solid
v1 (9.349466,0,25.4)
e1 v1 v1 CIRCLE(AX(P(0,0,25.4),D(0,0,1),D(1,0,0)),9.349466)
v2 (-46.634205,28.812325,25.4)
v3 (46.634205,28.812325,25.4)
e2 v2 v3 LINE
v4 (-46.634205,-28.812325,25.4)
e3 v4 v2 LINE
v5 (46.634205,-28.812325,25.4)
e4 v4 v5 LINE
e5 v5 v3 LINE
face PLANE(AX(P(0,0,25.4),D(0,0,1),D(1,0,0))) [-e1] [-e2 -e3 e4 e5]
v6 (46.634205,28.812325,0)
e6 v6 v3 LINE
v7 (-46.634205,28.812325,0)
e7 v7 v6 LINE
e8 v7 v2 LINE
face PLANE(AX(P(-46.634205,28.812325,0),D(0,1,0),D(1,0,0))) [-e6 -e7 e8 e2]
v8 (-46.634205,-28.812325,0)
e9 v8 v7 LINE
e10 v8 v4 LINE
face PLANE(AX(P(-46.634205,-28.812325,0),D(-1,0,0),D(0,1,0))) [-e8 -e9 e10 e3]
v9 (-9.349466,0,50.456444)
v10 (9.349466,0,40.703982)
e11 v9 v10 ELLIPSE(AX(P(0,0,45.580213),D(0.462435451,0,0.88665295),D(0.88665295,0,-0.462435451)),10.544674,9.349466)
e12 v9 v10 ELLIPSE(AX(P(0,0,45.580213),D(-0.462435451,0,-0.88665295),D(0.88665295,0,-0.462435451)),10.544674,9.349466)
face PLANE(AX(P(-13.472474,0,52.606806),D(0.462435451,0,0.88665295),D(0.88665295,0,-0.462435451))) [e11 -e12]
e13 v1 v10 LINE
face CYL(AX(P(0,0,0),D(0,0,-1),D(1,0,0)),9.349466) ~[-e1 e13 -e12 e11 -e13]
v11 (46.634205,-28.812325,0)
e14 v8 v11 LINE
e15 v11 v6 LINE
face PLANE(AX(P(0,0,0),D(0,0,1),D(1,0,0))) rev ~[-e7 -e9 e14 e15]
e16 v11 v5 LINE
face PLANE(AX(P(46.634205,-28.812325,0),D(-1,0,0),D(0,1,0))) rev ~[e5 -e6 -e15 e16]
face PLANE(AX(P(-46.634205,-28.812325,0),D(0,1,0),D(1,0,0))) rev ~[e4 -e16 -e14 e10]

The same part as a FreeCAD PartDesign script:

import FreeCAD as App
import Part
import Sketcher

V = App.Vector
Q = App.Units.Quantity

doc = App.newDocument("Part")
body = doc.addObject("PartDesign::Body", "Body")

# Sketch on XY plane
sketch1 = doc.addObject("Sketcher::SketchObject", "Sketch")
body.addObject(sketch1)
sketch1.AttachmentSupport = (doc.XY_Plane, [""])
sketch1.MapMode = "FlatFace"
sketch1.addGeometry(Part.Circle(V(0, 0, 0), V(0, 0, 1), 9), False)
sketch1.addConstraint([
    Sketcher.Constraint("Coincident", 0, 3, -1, 1),
    Sketcher.Constraint("Diameter", 0, 18.698932),
])
pad1 = doc.addObject("PartDesign::Pad", "Pad")
body.addObject(pad1)
pad1.Profile = sketch1
pad1.Length = Q("2 in")

# Sketch on XY plane
sketch2 = doc.addObject("Sketcher::SketchObject", "Sketch001")
body.addObject(sketch2)
sketch2.AttachmentSupport = (doc.XY_Plane, [""])
sketch2.MapMode = "FlatFace"
sketch2.addGeometry([
    Part.LineSegment(V(-47, 29, 0), V(-47, -29, 0)),  # 0
    Part.LineSegment(V(-47, -29, 0), V(47, -29, 0)),  # 1
    Part.LineSegment(V(47, -29, 0), V(47, 29, 0)),  # 2
    Part.LineSegment(V(47, 29, 0), V(-47, 29, 0)),  # 3
    Part.Circle(V(0, 0, 0), V(0, 0, 1), 9),  # 4
], False)
sketch2.addConstraint([
    Sketcher.Constraint("Coincident", 0, 2, 1, 1),
    Sketcher.Constraint("Coincident", 1, 2, 2, 1),
    Sketcher.Constraint("Coincident", 2, 2, 3, 1),
    Sketcher.Constraint("Coincident", 3, 2, 0, 1),
    Sketcher.Constraint("Vertical", 0),
    Sketcher.Constraint("Horizontal", 1),
    Sketcher.Constraint("Vertical", 2),
    Sketcher.Constraint("Horizontal", 3),
    Sketcher.Constraint("Coincident", 4, 3, -1, 1),
    Sketcher.Constraint("Symmetric", 0, 2, 2, 2, -1, 1),
    Sketcher.Constraint("Diameter", 4, 18.698932),
    Sketcher.Constraint("DistanceX", 1, 1, 1, 2, 93.26841),
    Sketcher.Constraint("DistanceY", 0, 2, 0, 1, 57.62465),
])
pad2 = doc.addObject("PartDesign::Pad", "Pad001")
body.addObject(pad2)
pad2.Profile = sketch2
pad2.Length = Q("1 in")

# Sketch on XZ plane
sketch3 = doc.addObject("Sketcher::SketchObject", "Sketch002")
body.addObject(sketch3)
sketch3.AttachmentSupport = (doc.XZ_Plane, [""])
sketch3.MapMode = "FlatFace"
sketch3.addGeometry([
    Part.LineSegment(V(29, 53, 0), V(-13, 53, 0)),
    Part.LineSegment(V(-13, 53, 0), V(29, 30, 0)),
    Part.LineSegment(V(29, 30, 0), V(29, 53, 0)),
], False)
sketch3.addConstraint([
    Sketcher.Constraint("Coincident", 0, 2, 1, 1),
    Sketcher.Constraint("Coincident", 1, 2, 2, 1),
    Sketcher.Constraint("Coincident", 2, 2, 0, 1),
    Sketcher.Constraint("Horizontal", 0),
    Sketcher.Constraint("Vertical", 2),
    Sketcher.Constraint("DistanceX", 0, 2, 0, 1, 42.525361),
    Sketcher.Constraint("DistanceY", 2, 1, 2, 2, 22.179179),
    Sketcher.Constraint("DistanceX", 0, 2, -1, 1, 13.472474),
    Sketcher.Constraint("DistanceY", -1, 1, 0, 2, 52.606806),
])
pocket1 = doc.addObject("PartDesign::Pocket", "Pocket")
body.addObject(pocket1)
pocket1.Profile = sketch3
pocket1.Length = Q("1 in")

# Sketch on XZ plane
sketch4 = doc.addObject("Sketcher::SketchObject", "Sketch003")
body.addObject(sketch4)
sketch4.AttachmentSupport = (doc.XZ_Plane, [""])
sketch4.MapMode = "FlatFace"
sketch4.addGeometry([
    Part.LineSegment(V(29, 53, 0), V(-13, 53, 0)),
    Part.LineSegment(V(-13, 53, 0), V(29, 30, 0)),
    Part.LineSegment(V(29, 30, 0), V(29, 53, 0)),
], False)
sketch4.addConstraint([
    Sketcher.Constraint("Coincident", 0, 2, 1, 1),
    Sketcher.Constraint("Coincident", 1, 2, 2, 1),
    Sketcher.Constraint("Coincident", 2, 2, 0, 1),
    Sketcher.Constraint("Horizontal", 0),
    Sketcher.Constraint("Vertical", 2),
    Sketcher.Constraint("DistanceX", 0, 2, 0, 1, 42.525361),
    Sketcher.Constraint("DistanceY", 2, 1, 2, 2, 22.179179),
    Sketcher.Constraint("DistanceX", 0, 2, -1, 1, 13.472474),
    Sketcher.Constraint("DistanceY", -1, 1, 0, 2, 52.606806),
])
pocket2 = doc.addObject("PartDesign::Pocket", "Pocket001")
body.addObject(pocket2)
pocket2.Profile = sketch4
pocket2.Length = Q("3 in")
pocket2.Reversed = True

doc.recompute()
